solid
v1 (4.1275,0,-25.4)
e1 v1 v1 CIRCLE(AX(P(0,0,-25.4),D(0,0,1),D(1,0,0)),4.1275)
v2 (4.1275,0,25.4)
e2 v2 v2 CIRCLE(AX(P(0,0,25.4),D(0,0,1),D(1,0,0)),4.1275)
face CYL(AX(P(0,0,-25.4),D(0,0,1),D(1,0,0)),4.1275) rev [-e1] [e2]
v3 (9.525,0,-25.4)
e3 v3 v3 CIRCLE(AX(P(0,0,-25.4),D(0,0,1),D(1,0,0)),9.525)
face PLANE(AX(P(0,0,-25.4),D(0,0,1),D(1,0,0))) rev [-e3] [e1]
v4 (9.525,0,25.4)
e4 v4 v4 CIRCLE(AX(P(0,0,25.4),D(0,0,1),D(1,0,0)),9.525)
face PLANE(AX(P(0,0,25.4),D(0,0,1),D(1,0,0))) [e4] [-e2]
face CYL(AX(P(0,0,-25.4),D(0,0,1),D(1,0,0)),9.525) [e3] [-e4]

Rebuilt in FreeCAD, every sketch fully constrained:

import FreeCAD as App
import Part
import Sketcher
Q = App.Units.Quantity

doc = App.newDocument("Part")
body = doc.addObject("PartDesign::Body", "Body")

sketch1 = body.newObject("Sketcher::SketchObject", "Sketch")
sketch1.AttachmentSupport = (doc.getObject("XY_Plane"), [""])
sketch1.MapMode = "FlatFace"
sketch1.addGeometry(Part.Circle(App.Vector(0, 0, 0), App.Vector(0, 0, 1), 9.5), False)
sketch1.addGeometry(Part.Circle(App.Vector(0, 0, 0), App.Vector(0, 0, 1), 4.1), False)
sketch1.addConstraint(Sketcher.Constraint("Coincident", 0, 3, -1, 1))
sketch1.addConstraint(Sketcher.Constraint("Coincident", 1, 3, -1, 1))
sketch1.addConstraint(Sketcher.Constraint("Diameter", 0, Q("0.75 in")))
sketch1.addConstraint(Sketcher.Constraint("Diameter", 1, Q("0.325 in")))
pad1 = body.newObject("PartDesign::Pad", "Pad")
pad1.Profile = sketch1
pad1.Type = "TwoLengths"
pad1.Length = Q("1 in")
pad1.Length2 = Q("1 in")

doc.recompute()
